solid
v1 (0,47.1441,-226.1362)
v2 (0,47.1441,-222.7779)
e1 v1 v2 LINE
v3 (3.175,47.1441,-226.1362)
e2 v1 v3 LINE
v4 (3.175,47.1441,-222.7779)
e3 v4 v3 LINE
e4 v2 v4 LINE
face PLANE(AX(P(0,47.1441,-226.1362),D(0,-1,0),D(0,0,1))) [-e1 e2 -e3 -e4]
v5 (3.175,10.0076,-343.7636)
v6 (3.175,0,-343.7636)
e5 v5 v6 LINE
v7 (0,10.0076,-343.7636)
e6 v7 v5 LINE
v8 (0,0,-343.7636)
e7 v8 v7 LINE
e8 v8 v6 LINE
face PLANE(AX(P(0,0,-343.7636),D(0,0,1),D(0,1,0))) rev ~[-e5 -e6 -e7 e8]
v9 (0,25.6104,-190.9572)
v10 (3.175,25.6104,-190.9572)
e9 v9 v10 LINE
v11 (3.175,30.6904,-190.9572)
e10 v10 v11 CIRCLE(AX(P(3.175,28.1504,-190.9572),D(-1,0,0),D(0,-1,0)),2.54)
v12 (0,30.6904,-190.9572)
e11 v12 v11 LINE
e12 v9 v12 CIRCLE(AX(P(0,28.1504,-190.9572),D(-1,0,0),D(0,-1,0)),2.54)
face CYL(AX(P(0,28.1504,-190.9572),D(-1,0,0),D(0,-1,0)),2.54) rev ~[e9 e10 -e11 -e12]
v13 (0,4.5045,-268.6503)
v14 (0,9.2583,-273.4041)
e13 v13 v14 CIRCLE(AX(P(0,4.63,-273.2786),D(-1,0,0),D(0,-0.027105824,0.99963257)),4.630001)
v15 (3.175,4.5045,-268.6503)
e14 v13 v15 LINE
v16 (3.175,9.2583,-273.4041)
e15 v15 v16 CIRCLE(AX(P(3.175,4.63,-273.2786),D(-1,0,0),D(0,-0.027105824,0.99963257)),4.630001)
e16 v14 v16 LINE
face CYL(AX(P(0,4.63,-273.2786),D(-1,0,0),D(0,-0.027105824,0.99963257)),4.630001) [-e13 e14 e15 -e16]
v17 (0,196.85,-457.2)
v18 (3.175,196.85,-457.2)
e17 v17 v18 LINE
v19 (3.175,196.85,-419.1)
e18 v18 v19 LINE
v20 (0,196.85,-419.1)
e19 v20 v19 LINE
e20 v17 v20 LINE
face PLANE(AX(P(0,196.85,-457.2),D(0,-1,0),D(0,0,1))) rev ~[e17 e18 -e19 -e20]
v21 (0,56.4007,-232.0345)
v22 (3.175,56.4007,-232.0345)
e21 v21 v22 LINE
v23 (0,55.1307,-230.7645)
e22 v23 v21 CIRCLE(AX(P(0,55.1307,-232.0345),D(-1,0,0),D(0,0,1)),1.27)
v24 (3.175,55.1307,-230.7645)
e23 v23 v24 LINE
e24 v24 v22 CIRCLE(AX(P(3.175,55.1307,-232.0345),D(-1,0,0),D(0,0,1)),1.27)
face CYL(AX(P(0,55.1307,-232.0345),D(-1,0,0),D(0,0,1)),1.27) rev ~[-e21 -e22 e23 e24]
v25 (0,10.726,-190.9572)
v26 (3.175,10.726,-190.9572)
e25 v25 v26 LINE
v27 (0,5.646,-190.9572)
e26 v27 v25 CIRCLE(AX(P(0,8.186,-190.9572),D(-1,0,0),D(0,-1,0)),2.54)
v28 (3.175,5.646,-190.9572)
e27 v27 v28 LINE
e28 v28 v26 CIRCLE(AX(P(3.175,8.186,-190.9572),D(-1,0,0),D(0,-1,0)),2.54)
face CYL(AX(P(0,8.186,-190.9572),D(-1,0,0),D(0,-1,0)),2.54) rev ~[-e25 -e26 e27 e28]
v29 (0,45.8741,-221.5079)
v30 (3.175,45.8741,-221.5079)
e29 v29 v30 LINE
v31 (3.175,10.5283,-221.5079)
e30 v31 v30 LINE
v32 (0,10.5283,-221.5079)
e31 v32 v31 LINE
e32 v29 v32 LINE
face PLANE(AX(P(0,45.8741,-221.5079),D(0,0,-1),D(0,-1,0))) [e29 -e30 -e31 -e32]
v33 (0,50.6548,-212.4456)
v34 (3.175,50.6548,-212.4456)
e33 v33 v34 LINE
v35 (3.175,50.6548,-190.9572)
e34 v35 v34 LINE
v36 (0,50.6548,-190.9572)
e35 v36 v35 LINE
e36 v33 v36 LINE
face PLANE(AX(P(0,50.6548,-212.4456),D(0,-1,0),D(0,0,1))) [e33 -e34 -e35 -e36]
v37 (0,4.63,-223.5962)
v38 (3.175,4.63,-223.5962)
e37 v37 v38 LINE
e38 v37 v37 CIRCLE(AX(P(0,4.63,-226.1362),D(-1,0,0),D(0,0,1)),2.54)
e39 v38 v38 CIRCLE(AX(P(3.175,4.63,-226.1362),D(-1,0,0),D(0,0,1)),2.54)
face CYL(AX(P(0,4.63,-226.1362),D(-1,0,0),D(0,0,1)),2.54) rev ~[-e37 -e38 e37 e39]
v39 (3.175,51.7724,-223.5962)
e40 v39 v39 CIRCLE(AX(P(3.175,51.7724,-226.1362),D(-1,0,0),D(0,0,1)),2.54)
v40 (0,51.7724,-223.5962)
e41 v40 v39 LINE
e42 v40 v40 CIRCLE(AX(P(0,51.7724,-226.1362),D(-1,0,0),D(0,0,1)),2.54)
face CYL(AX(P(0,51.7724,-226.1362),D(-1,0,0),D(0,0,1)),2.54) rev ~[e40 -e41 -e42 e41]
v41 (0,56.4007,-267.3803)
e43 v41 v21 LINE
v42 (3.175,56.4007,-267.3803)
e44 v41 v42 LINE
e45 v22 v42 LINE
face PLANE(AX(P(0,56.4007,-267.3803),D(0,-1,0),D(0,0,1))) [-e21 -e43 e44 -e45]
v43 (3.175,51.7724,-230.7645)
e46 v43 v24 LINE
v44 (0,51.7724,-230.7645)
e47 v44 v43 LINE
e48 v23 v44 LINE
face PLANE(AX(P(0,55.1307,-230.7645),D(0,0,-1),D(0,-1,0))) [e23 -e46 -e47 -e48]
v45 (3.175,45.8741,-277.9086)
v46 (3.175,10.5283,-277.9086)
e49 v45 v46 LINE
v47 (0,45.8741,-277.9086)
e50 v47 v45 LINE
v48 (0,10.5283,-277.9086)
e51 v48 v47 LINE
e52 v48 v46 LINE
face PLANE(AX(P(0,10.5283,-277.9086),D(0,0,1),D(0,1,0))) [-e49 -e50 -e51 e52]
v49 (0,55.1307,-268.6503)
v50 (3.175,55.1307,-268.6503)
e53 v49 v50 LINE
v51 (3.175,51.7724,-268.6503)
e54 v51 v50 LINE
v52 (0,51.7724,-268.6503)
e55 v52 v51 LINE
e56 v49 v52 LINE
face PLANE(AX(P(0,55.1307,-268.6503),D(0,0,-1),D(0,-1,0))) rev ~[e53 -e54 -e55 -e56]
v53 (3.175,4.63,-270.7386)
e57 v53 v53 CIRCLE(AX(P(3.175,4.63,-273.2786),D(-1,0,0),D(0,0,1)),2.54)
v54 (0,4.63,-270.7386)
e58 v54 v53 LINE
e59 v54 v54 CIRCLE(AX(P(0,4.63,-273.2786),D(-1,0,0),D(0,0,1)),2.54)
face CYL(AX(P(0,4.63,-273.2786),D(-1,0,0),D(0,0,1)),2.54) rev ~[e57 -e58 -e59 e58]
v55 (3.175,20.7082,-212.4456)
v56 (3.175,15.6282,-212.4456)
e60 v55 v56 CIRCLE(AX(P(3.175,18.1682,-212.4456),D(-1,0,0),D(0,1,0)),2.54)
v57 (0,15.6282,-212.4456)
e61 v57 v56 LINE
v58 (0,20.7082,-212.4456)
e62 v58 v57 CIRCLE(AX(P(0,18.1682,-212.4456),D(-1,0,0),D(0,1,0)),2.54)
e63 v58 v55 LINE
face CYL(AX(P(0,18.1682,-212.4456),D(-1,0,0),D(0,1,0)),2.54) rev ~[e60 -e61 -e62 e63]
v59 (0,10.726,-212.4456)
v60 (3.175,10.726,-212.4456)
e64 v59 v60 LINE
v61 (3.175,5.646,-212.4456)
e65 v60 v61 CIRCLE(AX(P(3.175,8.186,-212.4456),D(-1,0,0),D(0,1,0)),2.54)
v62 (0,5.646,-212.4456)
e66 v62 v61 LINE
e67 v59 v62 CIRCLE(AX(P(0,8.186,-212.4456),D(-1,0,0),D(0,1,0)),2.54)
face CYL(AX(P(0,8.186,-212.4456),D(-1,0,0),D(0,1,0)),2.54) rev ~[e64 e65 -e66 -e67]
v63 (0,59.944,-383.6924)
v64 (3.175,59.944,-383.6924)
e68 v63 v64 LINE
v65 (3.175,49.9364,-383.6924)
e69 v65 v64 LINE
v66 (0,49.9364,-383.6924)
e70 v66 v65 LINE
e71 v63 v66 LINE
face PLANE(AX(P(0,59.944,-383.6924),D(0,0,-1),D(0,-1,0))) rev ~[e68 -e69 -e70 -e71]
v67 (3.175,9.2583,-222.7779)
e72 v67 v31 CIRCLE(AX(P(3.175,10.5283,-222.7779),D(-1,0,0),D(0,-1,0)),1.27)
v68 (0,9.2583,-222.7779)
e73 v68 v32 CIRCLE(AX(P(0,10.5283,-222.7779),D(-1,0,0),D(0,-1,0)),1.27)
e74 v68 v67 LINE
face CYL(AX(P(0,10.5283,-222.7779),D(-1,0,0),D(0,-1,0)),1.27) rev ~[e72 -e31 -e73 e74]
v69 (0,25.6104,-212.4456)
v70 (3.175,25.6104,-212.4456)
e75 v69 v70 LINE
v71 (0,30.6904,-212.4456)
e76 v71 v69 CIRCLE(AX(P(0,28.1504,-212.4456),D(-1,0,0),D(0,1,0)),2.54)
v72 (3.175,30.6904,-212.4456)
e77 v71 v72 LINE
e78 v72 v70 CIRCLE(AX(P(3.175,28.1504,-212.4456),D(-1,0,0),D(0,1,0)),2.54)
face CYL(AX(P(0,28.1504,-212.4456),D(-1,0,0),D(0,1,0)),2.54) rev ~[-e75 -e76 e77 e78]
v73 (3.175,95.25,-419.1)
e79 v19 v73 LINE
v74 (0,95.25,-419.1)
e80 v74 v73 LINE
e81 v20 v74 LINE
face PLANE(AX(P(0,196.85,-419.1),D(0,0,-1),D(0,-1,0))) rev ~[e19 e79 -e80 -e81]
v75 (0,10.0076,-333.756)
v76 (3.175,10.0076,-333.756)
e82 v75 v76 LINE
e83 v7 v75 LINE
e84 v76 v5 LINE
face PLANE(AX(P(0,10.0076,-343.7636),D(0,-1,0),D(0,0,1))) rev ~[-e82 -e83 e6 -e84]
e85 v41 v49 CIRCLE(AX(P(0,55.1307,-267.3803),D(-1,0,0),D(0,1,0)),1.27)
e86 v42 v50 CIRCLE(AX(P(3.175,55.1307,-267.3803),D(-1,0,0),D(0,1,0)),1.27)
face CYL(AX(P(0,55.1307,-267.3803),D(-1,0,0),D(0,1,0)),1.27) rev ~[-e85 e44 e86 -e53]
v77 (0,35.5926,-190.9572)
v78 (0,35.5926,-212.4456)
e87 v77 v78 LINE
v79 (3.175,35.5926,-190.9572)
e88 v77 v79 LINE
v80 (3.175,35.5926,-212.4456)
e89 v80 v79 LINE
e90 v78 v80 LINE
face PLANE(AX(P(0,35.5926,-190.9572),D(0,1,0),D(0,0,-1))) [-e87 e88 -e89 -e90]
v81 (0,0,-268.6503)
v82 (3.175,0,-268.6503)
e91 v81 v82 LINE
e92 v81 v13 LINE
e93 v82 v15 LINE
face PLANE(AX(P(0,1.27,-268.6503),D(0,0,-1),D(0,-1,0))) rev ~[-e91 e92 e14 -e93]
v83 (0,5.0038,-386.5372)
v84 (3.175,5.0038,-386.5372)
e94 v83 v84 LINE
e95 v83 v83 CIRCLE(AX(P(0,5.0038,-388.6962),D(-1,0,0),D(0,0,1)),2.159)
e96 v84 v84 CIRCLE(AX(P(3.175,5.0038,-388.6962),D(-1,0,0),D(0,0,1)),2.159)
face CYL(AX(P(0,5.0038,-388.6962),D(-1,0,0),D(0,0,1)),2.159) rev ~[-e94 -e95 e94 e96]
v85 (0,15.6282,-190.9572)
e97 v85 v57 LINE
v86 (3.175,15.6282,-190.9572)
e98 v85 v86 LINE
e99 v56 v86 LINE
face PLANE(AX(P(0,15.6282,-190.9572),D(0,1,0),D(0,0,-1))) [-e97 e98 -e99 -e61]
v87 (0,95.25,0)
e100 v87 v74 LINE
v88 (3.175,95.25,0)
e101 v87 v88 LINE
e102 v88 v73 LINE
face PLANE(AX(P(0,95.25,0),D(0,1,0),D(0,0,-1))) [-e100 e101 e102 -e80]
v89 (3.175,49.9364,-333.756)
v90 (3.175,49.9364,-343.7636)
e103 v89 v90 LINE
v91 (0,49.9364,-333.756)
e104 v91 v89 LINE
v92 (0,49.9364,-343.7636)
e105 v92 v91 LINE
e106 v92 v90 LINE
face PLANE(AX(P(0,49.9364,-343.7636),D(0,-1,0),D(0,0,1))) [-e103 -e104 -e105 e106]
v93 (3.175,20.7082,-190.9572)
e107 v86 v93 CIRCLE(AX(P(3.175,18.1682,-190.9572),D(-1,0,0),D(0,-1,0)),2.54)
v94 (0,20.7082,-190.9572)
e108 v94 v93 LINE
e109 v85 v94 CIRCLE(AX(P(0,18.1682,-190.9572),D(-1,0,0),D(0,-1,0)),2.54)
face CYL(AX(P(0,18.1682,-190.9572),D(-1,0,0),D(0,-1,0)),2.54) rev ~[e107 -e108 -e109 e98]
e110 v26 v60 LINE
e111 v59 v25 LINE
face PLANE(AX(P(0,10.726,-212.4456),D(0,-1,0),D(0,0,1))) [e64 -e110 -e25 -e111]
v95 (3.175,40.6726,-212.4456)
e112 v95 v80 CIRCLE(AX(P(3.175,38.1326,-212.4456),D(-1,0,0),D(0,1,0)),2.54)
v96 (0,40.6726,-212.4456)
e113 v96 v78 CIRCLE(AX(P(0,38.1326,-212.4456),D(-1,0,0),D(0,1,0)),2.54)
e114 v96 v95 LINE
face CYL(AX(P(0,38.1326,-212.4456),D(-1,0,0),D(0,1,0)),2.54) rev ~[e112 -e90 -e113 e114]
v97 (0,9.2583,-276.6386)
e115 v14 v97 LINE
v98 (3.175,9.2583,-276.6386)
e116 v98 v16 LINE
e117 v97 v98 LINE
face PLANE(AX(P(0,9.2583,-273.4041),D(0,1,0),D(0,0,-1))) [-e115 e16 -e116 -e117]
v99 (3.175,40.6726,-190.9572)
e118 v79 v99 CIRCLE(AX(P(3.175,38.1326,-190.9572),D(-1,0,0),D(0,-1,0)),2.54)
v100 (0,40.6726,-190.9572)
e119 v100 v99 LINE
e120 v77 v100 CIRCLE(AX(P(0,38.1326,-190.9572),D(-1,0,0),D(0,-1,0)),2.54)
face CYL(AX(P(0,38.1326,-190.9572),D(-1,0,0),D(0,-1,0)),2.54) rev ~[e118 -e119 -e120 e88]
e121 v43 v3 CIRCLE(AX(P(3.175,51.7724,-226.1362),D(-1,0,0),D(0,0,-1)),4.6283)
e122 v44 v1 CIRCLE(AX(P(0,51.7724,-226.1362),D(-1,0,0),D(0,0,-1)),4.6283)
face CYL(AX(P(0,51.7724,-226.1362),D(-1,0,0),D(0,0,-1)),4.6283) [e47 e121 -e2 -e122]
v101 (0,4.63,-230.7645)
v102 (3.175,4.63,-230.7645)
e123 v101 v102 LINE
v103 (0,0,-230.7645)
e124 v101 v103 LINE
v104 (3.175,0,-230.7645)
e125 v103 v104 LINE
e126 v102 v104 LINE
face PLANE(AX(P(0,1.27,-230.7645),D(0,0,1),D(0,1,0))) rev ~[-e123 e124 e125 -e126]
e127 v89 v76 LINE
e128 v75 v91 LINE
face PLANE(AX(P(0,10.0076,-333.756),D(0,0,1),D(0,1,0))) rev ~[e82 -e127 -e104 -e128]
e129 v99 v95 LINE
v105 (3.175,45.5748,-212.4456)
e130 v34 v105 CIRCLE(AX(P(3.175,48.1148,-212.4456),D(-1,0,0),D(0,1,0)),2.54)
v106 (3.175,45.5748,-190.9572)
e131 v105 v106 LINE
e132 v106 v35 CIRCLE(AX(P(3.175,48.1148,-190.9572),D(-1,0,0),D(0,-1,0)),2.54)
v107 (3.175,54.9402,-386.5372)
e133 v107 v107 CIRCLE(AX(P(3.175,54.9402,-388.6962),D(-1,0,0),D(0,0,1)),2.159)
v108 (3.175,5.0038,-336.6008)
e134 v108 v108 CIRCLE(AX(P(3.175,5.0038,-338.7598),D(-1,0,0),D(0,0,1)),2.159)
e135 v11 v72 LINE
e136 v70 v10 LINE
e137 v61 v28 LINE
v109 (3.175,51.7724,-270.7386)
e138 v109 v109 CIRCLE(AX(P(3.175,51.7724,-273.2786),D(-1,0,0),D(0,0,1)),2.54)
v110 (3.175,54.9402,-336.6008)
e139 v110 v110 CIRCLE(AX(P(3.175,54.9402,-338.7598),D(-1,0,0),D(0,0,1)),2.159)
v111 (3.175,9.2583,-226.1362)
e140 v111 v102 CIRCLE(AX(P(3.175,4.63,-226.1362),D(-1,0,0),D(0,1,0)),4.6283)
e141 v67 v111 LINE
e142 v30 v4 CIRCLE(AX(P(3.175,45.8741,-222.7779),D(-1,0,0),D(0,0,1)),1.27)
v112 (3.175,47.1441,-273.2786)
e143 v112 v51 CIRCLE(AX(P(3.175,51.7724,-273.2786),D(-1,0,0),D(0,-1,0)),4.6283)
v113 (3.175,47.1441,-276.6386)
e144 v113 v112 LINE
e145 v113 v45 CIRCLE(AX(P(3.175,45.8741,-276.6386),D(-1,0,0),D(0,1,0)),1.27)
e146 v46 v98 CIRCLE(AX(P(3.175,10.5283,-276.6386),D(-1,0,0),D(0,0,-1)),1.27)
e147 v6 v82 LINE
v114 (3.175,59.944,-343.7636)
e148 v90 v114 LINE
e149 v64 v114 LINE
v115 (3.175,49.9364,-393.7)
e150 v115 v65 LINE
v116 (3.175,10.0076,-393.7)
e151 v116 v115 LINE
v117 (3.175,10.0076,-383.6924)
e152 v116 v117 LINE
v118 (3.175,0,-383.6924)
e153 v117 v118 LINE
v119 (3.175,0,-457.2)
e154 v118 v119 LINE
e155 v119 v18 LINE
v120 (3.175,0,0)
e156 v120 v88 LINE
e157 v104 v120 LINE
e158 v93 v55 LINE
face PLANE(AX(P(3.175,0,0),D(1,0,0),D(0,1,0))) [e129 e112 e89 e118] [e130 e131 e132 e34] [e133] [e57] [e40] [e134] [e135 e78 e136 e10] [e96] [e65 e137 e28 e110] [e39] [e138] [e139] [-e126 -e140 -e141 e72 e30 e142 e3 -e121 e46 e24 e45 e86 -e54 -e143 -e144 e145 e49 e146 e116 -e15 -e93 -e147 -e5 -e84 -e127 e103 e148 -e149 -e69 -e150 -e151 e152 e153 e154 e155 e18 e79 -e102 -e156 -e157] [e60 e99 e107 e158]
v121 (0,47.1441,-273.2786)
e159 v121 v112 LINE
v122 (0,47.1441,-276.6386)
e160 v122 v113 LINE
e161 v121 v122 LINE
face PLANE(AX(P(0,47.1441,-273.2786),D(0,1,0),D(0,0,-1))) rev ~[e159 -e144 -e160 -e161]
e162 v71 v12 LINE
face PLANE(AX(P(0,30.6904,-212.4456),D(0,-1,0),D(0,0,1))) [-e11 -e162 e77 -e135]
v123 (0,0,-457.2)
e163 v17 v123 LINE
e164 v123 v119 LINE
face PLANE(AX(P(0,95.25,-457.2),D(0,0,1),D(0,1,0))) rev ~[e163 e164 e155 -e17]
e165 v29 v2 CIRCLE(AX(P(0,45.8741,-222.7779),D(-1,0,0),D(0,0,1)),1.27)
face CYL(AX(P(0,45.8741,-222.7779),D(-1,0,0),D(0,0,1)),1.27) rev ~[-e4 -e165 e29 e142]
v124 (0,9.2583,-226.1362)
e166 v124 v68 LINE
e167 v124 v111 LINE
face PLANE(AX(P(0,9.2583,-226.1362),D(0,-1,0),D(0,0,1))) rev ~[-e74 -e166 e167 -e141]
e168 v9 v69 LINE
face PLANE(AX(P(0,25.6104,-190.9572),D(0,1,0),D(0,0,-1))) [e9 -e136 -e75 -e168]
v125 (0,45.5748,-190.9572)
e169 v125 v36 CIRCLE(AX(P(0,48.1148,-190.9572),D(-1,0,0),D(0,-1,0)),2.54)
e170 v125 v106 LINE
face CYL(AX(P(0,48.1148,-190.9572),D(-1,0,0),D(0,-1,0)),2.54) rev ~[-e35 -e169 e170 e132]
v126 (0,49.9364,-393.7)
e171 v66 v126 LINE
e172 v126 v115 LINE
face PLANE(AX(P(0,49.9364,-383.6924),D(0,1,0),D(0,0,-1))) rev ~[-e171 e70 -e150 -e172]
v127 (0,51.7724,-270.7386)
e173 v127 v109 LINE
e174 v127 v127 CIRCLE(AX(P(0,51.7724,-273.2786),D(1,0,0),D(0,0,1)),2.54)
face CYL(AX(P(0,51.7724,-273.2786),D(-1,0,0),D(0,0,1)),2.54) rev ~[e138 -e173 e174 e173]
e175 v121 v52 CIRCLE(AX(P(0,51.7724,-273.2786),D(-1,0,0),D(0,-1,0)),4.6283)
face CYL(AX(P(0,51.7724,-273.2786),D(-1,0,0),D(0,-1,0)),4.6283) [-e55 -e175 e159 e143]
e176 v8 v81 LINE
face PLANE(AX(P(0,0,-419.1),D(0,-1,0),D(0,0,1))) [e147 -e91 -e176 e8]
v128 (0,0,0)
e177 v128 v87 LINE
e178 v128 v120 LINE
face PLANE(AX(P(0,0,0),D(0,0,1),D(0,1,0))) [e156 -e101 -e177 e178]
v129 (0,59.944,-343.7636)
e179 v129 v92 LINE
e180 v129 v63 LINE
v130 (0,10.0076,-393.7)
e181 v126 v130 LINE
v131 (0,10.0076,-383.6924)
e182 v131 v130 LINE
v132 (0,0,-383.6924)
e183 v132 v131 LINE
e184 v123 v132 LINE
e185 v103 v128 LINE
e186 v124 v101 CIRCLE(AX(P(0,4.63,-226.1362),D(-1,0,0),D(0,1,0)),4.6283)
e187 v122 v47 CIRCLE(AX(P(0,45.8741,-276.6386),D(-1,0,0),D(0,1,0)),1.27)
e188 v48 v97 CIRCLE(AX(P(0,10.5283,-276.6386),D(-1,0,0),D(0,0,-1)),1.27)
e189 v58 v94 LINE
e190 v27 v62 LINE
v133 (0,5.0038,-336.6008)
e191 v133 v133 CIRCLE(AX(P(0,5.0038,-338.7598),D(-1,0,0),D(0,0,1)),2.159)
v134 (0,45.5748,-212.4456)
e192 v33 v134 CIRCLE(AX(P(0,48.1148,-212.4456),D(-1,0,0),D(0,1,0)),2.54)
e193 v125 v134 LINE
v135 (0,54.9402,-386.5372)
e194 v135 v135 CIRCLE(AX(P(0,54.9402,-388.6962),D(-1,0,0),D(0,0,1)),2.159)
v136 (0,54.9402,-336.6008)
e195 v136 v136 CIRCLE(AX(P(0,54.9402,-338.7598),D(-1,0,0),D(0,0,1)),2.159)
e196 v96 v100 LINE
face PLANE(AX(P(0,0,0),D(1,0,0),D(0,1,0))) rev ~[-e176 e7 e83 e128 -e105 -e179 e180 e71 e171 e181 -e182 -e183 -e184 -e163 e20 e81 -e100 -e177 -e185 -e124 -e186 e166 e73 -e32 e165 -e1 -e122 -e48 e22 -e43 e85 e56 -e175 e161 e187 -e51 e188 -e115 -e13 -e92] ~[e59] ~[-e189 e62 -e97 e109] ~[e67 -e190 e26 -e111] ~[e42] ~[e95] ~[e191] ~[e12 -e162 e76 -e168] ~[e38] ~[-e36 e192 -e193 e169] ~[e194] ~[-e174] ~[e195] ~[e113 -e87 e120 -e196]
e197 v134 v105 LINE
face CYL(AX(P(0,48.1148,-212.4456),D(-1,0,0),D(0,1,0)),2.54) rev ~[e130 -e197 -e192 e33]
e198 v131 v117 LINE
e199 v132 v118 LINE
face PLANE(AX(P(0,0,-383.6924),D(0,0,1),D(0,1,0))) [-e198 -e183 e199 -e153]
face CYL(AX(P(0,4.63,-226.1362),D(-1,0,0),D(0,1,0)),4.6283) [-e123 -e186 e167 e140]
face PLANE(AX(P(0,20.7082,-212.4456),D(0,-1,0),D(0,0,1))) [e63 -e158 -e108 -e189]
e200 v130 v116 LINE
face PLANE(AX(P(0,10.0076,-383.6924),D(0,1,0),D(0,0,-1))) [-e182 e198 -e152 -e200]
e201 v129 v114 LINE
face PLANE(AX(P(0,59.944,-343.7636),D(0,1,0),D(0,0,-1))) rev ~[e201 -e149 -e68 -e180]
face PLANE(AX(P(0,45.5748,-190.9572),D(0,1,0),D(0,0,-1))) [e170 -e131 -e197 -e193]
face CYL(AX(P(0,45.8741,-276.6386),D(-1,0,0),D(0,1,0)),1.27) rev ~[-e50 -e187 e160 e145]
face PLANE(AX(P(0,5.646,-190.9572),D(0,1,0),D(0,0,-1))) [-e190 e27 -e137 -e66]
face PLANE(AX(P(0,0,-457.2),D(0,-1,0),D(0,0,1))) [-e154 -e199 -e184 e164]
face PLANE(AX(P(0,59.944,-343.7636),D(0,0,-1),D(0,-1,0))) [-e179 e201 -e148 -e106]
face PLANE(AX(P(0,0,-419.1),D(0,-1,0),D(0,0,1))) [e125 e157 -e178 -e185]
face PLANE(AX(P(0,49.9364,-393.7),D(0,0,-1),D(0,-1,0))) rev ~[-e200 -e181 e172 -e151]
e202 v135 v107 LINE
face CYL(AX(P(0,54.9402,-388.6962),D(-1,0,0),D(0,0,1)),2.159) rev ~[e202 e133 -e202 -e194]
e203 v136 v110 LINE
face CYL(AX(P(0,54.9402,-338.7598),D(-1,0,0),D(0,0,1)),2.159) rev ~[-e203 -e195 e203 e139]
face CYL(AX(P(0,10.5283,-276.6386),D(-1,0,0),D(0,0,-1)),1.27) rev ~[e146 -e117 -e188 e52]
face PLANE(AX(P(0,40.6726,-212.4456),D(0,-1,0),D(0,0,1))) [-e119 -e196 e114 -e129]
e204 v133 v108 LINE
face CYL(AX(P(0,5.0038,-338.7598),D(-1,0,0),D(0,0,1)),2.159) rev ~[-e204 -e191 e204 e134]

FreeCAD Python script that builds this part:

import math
import FreeCAD as App
import Part
import Sketcher
Q = App.Units.Quantity

doc = App.newDocument("Part")
params = doc.addObject("Spreadsheet::Sheet", "Params")
for row, (alias, value) in enumerate([
    ("sketch1_width", "4 in"),
    ("sketch1_height", "18 in"),
    ("sketch1_height2", "1.5 in"),
    ("sketch1_width2", "3.75 in"),
    ("pad1_length", "0.125 in"),
    ("sketch2_radius", "0.05 in"),
    ("sketch2_diameter", "0.2 in"),
    ("sketch2_diameter2", "0.17 in"),
    ("sketch2_width", "1.572 in"),
    ("sketch2_width2", "0.394 in"),
    ("pocket1_length", "1 in"),
], start=1):
    params.set(f"A{row}", alias)
    params.set(f"B{row}", "=" + value)
    params.setAlias(f"B{row}", alias)

body = doc.addObject("PartDesign::Body", "Body")

# Sketch on YZ plane
sketch1 = doc.addObject("Sketcher::SketchObject", "Sketch")
body.addObject(sketch1)
sketch1.AttachmentSupport = (doc.YZ_Plane, [""])
sketch1.MapMode = "FlatFace"
sketch1.addGeometry(Part.LineSegment(App.Vector(95, 0, 0), App.Vector(0, 0, 0)), False)
sketch1.addGeometry(Part.LineSegment(App.Vector(0, 0, 0), App.Vector(0, -457, 0)), False)
sketch1.addGeometry(Part.LineSegment(App.Vector(0, -457, 0), App.Vector(197, -457, 0)), False)
sketch1.addGeometry(Part.LineSegment(App.Vector(197, -457, 0), App.Vector(197, -419, 0)), False)
sketch1.addGeometry(Part.LineSegment(App.Vector(197, -419, 0), App.Vector(95, -419, 0)), False)
sketch1.addGeometry(Part.LineSegment(App.Vector(95, -419, 0), App.Vector(95, 0, 0)), False)
sketch1.addConstraint(Sketcher.Constraint("Coincident", 0, 2, 1, 1))
sketch1.addConstraint(Sketcher.Constraint("Coincident", 1, 2, 2, 1))
sketch1.addConstraint(Sketcher.Constraint("Coincident", 2, 2, 3, 1))
sketch1.addConstraint(Sketcher.Constraint("Coincident", 3, 2, 4, 1))
sketch1.addConstraint(Sketcher.Constraint("Coincident", 4, 2, 5, 1))
sketch1.addConstraint(Sketcher.Constraint("Coincident", 5, 2, 0, 1))
sketch1.addConstraint(Sketcher.Constraint("Horizontal", 0))
sketch1.addConstraint(Sketcher.Constraint("Vertical", 1))
sketch1.addConstraint(Sketcher.Constraint("Horizontal", 2))
sketch1.addConstraint(Sketcher.Constraint("Vertical", 3))
sketch1.addConstraint(Sketcher.Constraint("Horizontal", 4))
sketch1.addConstraint(Sketcher.Constraint("Vertical", 5))
sketch1.addConstraint(Sketcher.Constraint("Coincident", 0, 2, -1, 1))
sketch1.addConstraint(Sketcher.Constraint("DistanceX", 4, 2, 4, 1, Q("4 in")))
sketch1.addConstraint(Sketcher.Constraint("DistanceY", 1, 2, 1, 1, Q("18 in")))
sketch1.addConstraint(Sketcher.Constraint("DistanceY", 3, 1, 3, 2, Q("1.5 in")))
sketch1.addConstraint(Sketcher.Constraint("DistanceX", 0, 2, 0, 1, Q("3.75 in")))
sketch1.setExpression("Constraints[13]", "Params.sketch1_width")
sketch1.setExpression("Constraints[14]", "Params.sketch1_height")
sketch1.setExpression("Constraints[15]", "Params.sketch1_height2")
sketch1.setExpression("Constraints[16]", "Params.sketch1_width2")
pad1 = doc.addObject("PartDesign::Pad", "Pad")
body.addObject(pad1)
pad1.Profile = sketch1
pad1.setExpression("Length", "Params.pad1_length")

# Sketch on YZ plane
sketch2 = doc.addObject("Sketcher::SketchObject", "Sketch001")
body.addObject(sketch2)
sketch2.AttachmentSupport = (doc.YZ_Plane, [""])
sketch2.MapMode = "FlatFace"
sketch2.addGeometry(Part.LineSegment(App.Vector(49.9, -383.7, 0), App.Vector(49.9, -393.7, 0)), False)
sketch2.addGeometry(Part.LineSegment(App.Vector(49.9, -393.7, 0), App.Vector(10, -393.7, 0)), False)
sketch2.addGeometry(Part.LineSegment(App.Vector(10, -393.7, 0), App.Vector(10, -383.7, 0)), False)
sketch2.addGeometry(Part.LineSegment(App.Vector(10, -383.7, 0), App.Vector(0, -383.7, 0)), False)
sketch2.addGeometry(Part.LineSegment(App.Vector(0, -383.7, 0), App.Vector(0, -343.8, 0)), False)
sketch2.addGeometry(Part.LineSegment(App.Vector(0, -343.8, 0), App.Vector(10, -343.8, 0)), False)
sketch2.addGeometry(Part.LineSegment(App.Vector(10, -343.8, 0), App.Vector(10, -333.8, 0)), False)
sketch2.addGeometry(Part.LineSegment(App.Vector(10, -333.8, 0), App.Vector(49.9, -333.8, 0)), False)
sketch2.addGeometry(Part.LineSegment(App.Vector(49.9, -333.8, 0), App.Vector(49.9, -343.8, 0)), False)
sketch2.addGeometry(Part.LineSegment(App.Vector(49.9, -343.8, 0), App.Vector(59.9, -343.8, 0)), False)
sketch2.addGeometry(Part.LineSegment(App.Vector(59.9, -343.8, 0), App.Vector(59.9, -383.7, 0)), False)
sketch2.addGeometry(Part.LineSegment(App.Vector(59.9, -383.7, 0), App.Vector(49.9, -383.7, 0)), False)
sketch2.addGeometry(Part.LineSegment(App.Vector(4.5, -268.7, 0), App.Vector(0, -268.7, 0)), False)
sketch2.addGeometry(Part.LineSegment(App.Vector(0, -268.7, 0), App.Vector(0, -230.8, 0)), False)
sketch2.addGeometry(Part.LineSegment(App.Vector(0, -230.8, 0), App.Vector(4.6, -230.8, 0)), False)
sketch2.addGeometry(Part.ArcOfCircle(Part.Circle(App.Vector(4.6, -226.1, 0), App.Vector(0, 0, 1), 4.6), math.radians(-90), math.radians(0)), False)
sketch2.addGeometry(Part.LineSegment(App.Vector(9.3, -226.1, 0), App.Vector(9.3, -222.8, 0)), False)
sketch2.addGeometry(Part.ArcOfCircle(Part.Circle(App.Vector(10.5, -222.8, 0), App.Vector(0, 0, 1), 1.3), math.radians(90), math.radians(180)), False)
sketch2.addGeometry(Part.LineSegment(App.Vector(10.5, -221.5, 0), App.Vector(45.9, -221.5, 0)), False)
sketch2.addGeometry(Part.ArcOfCircle(Part.Circle(App.Vector(45.9, -222.8, 0), App.Vector(0, 0, 1), 1.3), math.radians(0), math.radians(90)), False)
sketch2.addGeometry(Part.LineSegment(App.Vector(47.1, -222.8, 0), App.Vector(47.1, -226.1, 0)), False)
sketch2.addGeometry(Part.ArcOfCircle(Part.Circle(App.Vector(51.8, -226.1, 0), App.Vector(0, 0, 1), 4.6), math.radians(180), math.radians(270)), False)
sketch2.addGeometry(Part.LineSegment(App.Vector(51.8, -230.8, 0), App.Vector(55.1, -230.8, 0)), False)
sketch2.addGeometry(Part.ArcOfCircle(Part.Circle(App.Vector(55.1, -232, 0), App.Vector(0, 0, 1), 1.3), math.radians(0), math.radians(90)), False)
sketch2.addGeometry(Part.LineSegment(App.Vector(56.4, -232, 0), App.Vector(56.4, -267.4, 0)), False)
sketch2.addGeometry(Part.ArcOfCircle(Part.Circle(App.Vector(55.1, -267.4, 0), App.Vector(0, 0, 1), 1.3), math.radians(-90), math.radians(0)), False)
sketch2.addGeometry(Part.LineSegment(App.Vector(55.1, -268.7, 0), App.Vector(51.8, -268.7, 0)), False)
sketch2.addGeometry(Part.ArcOfCircle(Part.Circle(App.Vector(51.8, -273.3, 0), App.Vector(0, 0, 1), 4.6), math.radians(90), math.radians(180)), False)
sketch2.addGeometry(Part.LineSegment(App.Vector(47.1, -273.3, 0), App.Vector(47.1, -276.6, 0)), False)
sketch2.addGeometry(Part.ArcOfCircle(Part.Circle(App.Vector(45.9, -276.6, 0), App.Vector(0, 0, 1), 1.3), math.radians(-90), math.radians(0)), False)
sketch2.addGeometry(Part.LineSegment(App.Vector(45.9, -277.9, 0), App.Vector(10.5, -277.9, 0)), False)
sketch2.addGeometry(Part.ArcOfCircle(Part.Circle(App.Vector(10.5, -276.6, 0), App.Vector(0, 0, 1), 1.3), math.radians(180), math.radians(270)), False)
sketch2.addGeometry(Part.LineSegment(App.Vector(9.3, -276.6, 0), App.Vector(9.3, -273.4, 0)), False)
sketch2.addGeometry(Part.ArcOfCircle(Part.Circle(App.Vector(4.6, -273.3, 0), App.Vector(0, 0, 1), 4.6), math.radians(-2), math.radians(92)), False)
sketch2.addGeometry(Part.Circle(App.Vector(54.9, -388.7, 0), App.Vector(0, 0, 1), 2.2), False)
sketch2.addGeometry(Part.Circle(App.Vector(54.9, -338.8, 0), App.Vector(0, 0, 1), 2.2), False)
sketch2.addGeometry(Part.Circle(App.Vector(5, -388.7, 0), App.Vector(0, 0, 1), 2.2), False)
sketch2.addGeometry(Part.Circle(App.Vector(5, -338.8, 0), App.Vector(0, 0, 1), 2.2), False)
sketch2.addGeometry(Part.Circle(App.Vector(51.8, -273.3, 0), App.Vector(0, 0, 1), 2.5), False)
sketch2.addGeometry(Part.Circle(App.Vector(4.6, -273.3, 0), App.Vector(0, 0, 1), 2.5), False)
sketch2.addGeometry(Part.Circle(App.Vector(51.8, -226.1, 0), App.Vector(0, 0, 1), 2.5), False)
sketch2.addGeometry(Part.Circle(App.Vector(4.6, -226.1, 0), App.Vector(0, 0, 1), 2.5), False)
sketch2.addGeometry(Part.LineSegment(App.Vector(5.6, -212.4, 0), App.Vector(5.6, -191, 0)), False)
sketch2.addGeometry(Part.ArcOfCircle(Part.Circle(App.Vector(8.2, -191, 0), App.Vector(0, 0, 1), 2.5), math.radians(0), math.radians(180)), False)
sketch2.addGeometry(Part.LineSegment(App.Vector(10.7, -191, 0), App.Vector(10.7, -212.4, 0)), False)
sketch2.addGeometry(Part.ArcOfCircle(Part.Circle(App.Vector(8.2, -212.4, 0), App.Vector(0, 0, 1), 2.5), math.radians(180), math.radians(360)), False)
sketch2.addGeometry(Part.LineSegment(App.Vector(15.6, -212.4, 0), App.Vector(15.6, -191, 0)), False)
sketch2.addGeometry(Part.ArcOfCircle(Part.Circle(App.Vector(18.2, -191, 0), App.Vector(0, 0, 1), 2.5), math.radians(0), math.radians(180)), False)
sketch2.addGeometry(Part.LineSegment(App.Vector(20.7, -191, 0), App.Vector(20.7, -212.4, 0)), False)
sketch2.addGeometry(Part.ArcOfCircle(Part.Circle(App.Vector(18.2, -212.4, 0), App.Vector(0, 0, 1), 2.5), math.radians(180), math.radians(360)), False)
sketch2.addGeometry(Part.LineSegment(App.Vector(25.6, -212.4, 0), App.Vector(25.6, -191, 0)), False)
sketch2.addGeometry(Part.ArcOfCircle(Part.Circle(App.Vector(28.2, -191, 0), App.Vector(0, 0, 1), 2.5), math.radians(0), math.radians(180)), False)
sketch2.addGeometry(Part.LineSegment(App.Vector(30.7, -191, 0), App.Vector(30.7, -212.4, 0)), False)
sketch2.addGeometry(Part.ArcOfCircle(Part.Circle(App.Vector(28.2, -212.4, 0), App.Vector(0, 0, 1), 2.5), math.radians(180), math.radians(360)), False)
sketch2.addGeometry(Part.LineSegment(App.Vector(35.6, -212.4, 0), App.Vector(35.6, -191, 0)), False)
sketch2.addGeometry(Part.ArcOfCircle(Part.Circle(App.Vector(38.1, -191, 0), App.Vector(0, 0, 1), 2.5), math.radians(0), math.radians(180)), False)
sketch2.addGeometry(Part.LineSegment(App.Vector(40.7, -191, 0), App.Vector(40.7, -212.4, 0)), False)
sketch2.addGeometry(Part.ArcOfCircle(Part.Circle(App.Vector(38.1, -212.4, 0), App.Vector(0, 0, 1), 2.5), math.radians(180), math.radians(360)), False)
sketch2.addGeometry(Part.LineSegment(App.Vector(45.6, -212.4, 0), App.Vector(45.6, -191, 0)), False)
sketch2.addGeometry(Part.ArcOfCircle(Part.Circle(App.Vector(48.1, -191, 0), App.Vector(0, 0, 1), 2.5), math.radians(0), math.radians(180)), False)
sketch2.addGeometry(Part.LineSegment(App.Vector(50.7, -191, 0), App.Vector(50.7, -212.4, 0)), False)
sketch2.addGeometry(Part.ArcOfCircle(Part.Circle(App.Vector(48.1, -212.4, 0), App.Vector(0, 0, 1), 2.5), math.radians(180), math.radians(360)), False)
sketch2.addConstraint(Sketcher.Constraint("Coincident", 0, 2, 1, 1))
sketch2.addConstraint(Sketcher.Constraint("Coincident", 1, 2, 2, 1))
sketch2.addConstraint(Sketcher.Constraint("Coincident", 2, 2, 3, 1))
sketch2.addConstraint(Sketcher.Constraint("Coincident", 3, 2, 4, 1))
sketch2.addConstraint(Sketcher.Constraint("Coincident", 4, 2, 5, 1))
sketch2.addConstraint(Sketcher.Constraint("Coincident", 5, 2, 6, 1))
sketch2.addConstraint(Sketcher.Constraint("Coincident", 6, 2, 7, 1))
sketch2.addConstraint(Sketcher.Constraint("Coincident", 7, 2, 8, 1))
sketch2.addConstraint(Sketcher.Constraint("Coincident", 8, 2, 9, 1))
sketch2.addConstraint(Sketcher.Constraint("Coincident", 9, 2, 10, 1))
sketch2.addConstraint(Sketcher.Constraint("Coincident", 10, 2, 11, 1))
sketch2.addConstraint(Sketcher.Constraint("Coincident", 11, 2, 0, 1))
sketch2.addConstraint(Sketcher.Constraint("Coincident", 12, 2, 13, 1))
sketch2.addConstraint(Sketcher.Constraint("Coincident", 13, 2, 14, 1))
sketch2.addConstraint(Sketcher.Constraint("Tangent", 14, 2, 15, 1))
sketch2.addConstraint(Sketcher.Constraint("Tangent", 15, 2, 16, 1))
sketch2.addConstraint(Sketcher.Constraint("Tangent", 16, 2, 17, 2))
sketch2.addConstraint(Sketcher.Constraint("Tangent", 17, 1, 18, 1))
sketch2.addConstraint(Sketcher.Constraint("Tangent", 18, 2, 19, 2))
sketch2.addConstraint(Sketcher.Constraint("Tangent", 19, 1, 20, 1))
sketch2.addConstraint(Sketcher.Constraint("Tangent", 20, 2, 21, 1))
sketch2.addConstraint(Sketcher.Constraint("Tangent", 21, 2, 22, 1))
sketch2.addConstraint(Sketcher.Constraint("Tangent", 22, 2, 23, 2))
sketch2.addConstraint(Sketcher.Constraint("Tangent", 23, 1, 24, 1))
sketch2.addConstraint(Sketcher.Constraint("Tangent", 24, 2, 25, 2))
sketch2.addConstraint(Sketcher.Constraint("Tangent", 25, 1, 26, 1))
sketch2.addConstraint(Sketcher.Constraint("Tangent", 26, 2, 27, 1))
sketch2.addConstraint(Sketcher.Constraint("Tangent", 27, 2, 28, 1))
sketch2.addConstraint(Sketcher.Constraint("Tangent", 28, 2, 29, 2))
sketch2.addConstraint(Sketcher.Constraint("Tangent", 29, 1, 30, 1))
sketch2.addConstraint(Sketcher.Constraint("Tangent", 30, 2, 31, 2))
sketch2.addConstraint(Sketcher.Constraint("Tangent", 31, 1, 32, 1))
sketch2.addConstraint(Sketcher.Constraint("Coincident", 32, 2, 33, 1))
sketch2.addConstraint(Sketcher.Constraint("Coincident", 33, 2, 12, 1))
sketch2.addConstraint(Sketcher.Constraint("Tangent", 42, 2, 43, 2))
sketch2.addConstraint(Sketcher.Constraint("Tangent", 43, 1, 44, 1))
sketch2.addConstraint(Sketcher.Constraint("Tangent", 44, 2, 45, 2))
sketch2.addConstraint(Sketcher.Constraint("Tangent", 45, 1, 42, 1))
sketch2.addConstraint(Sketcher.Constraint("Tangent", 46, 2, 47, 2))
sketch2.addConstraint(Sketcher.Constraint("Tangent", 47, 1, 48, 1))
sketch2.addConstraint(Sketcher.Constraint("Tangent", 48, 2, 49, 2))
sketch2.addConstraint(Sketcher.Constraint("Tangent", 49, 1, 46, 1))
sketch2.addConstraint(Sketcher.Constraint("Tangent", 50, 2, 51, 2))
sketch2.addConstraint(Sketcher.Constraint("Tangent", 51, 1, 52, 1))
sketch2.addConstraint(Sketcher.Constraint("Tangent", 52, 2, 53, 2))
sketch2.addConstraint(Sketcher.Constraint("Tangent", 53, 1, 50, 1))
sketch2.addConstraint(Sketcher.Constraint("Tangent", 54, 2, 55, 2))
sketch2.addConstraint(Sketcher.Constraint("Tangent", 55, 1, 56, 1))
sketch2.addConstraint(Sketcher.Constraint("Tangent", 56, 2, 57, 2))
sketch2.addConstraint(Sketcher.Constraint("Tangent", 57, 1, 54, 1))
sketch2.addConstraint(Sketcher.Constraint("Tangent", 58, 2, 59, 2))
sketch2.addConstraint(Sketcher.Constraint("Tangent", 59, 1, 60, 1))
sketch2.addConstraint(Sketcher.Constraint("Tangent", 60, 2, 61, 2))
sketch2.addConstraint(Sketcher.Constraint("Tangent", 61, 1, 58, 1))
sketch2.addConstraint(Sketcher.Constraint("Vertical", 0))
sketch2.addConstraint(Sketcher.Constraint("Horizontal", 1))
sketch2.addConstraint(Sketcher.Constraint("Vertical", 2))
sketch2.addConstraint(Sketcher.Constraint("Horizontal", 3))
sketch2.addConstraint(Sketcher.Constraint("Vertical", 4))
sketch2.addConstraint(Sketcher.Constraint("Horizontal", 5))
sketch2.addConstraint(Sketcher.Constraint("Vertical", 6))
sketch2.addConstraint(Sketcher.Constraint("Horizontal", 7))
sketch2.addConstraint(Sketcher.Constraint("Vertical", 8))
sketch2.addConstraint(Sketcher.Constraint("Horizontal", 9))
sketch2.addConstraint(Sketcher.Constraint("Vertical", 10))
sketch2.addConstraint(Sketcher.Constraint("Horizontal", 11))
sketch2.addConstraint(Sketcher.Constraint("Horizontal", 12))
sketch2.addConstraint(Sketcher.Constraint("Vertical", 13))
sketch2.addConstraint(Sketcher.Constraint("Horizontal", 14))
sketch2.addConstraint(Sketcher.Constraint("Vertical", 16))
sketch2.addConstraint(Sketcher.Constraint("Horizontal", 18))
sketch2.addConstraint(Sketcher.Constraint("Vertical", 20))
sketch2.addConstraint(Sketcher.Constraint("Horizontal", 22))
sketch2.addConstraint(Sketcher.Constraint("Vertical", 24))
sketch2.addConstraint(Sketcher.Constraint("Horizontal", 26))
sketch2.addConstraint(Sketcher.Constraint("Vertical", 28))
sketch2.addConstraint(Sketcher.Constraint("Horizontal", 30))
sketch2.addConstraint(Sketcher.Constraint("Vertical", 32))
sketch2.addConstraint(Sketcher.Constraint("Vertical", 42))
sketch2.addConstraint(Sketcher.Constraint("Vertical", 44))
sketch2.addConstraint(Sketcher.Constraint("Vertical", 46))
sketch2.addConstraint(Sketcher.Constraint("Vertical", 48))
sketch2.addConstraint(Sketcher.Constraint("Vertical", 50))
sketch2.addConstraint(Sketcher.Constraint("Vertical", 52))
sketch2.addConstraint(Sketcher.Constraint("Vertical", 54))
sketch2.addConstraint(Sketcher.Constraint("Vertical", 56))
sketch2.addConstraint(Sketcher.Constraint("Vertical", 58))
sketch2.addConstraint(Sketcher.Constraint("Vertical", 60))
sketch2.addConstraint(Sketcher.Constraint("Coincident", 38, 3, 27, 3))
sketch2.addConstraint(Sketcher.Constraint("Coincident", 39, 3, 33, 3))
sketch2.addConstraint(Sketcher.Constraint("Coincident", 40, 3, 21, 3))
sketch2.addConstraint(Sketcher.Constraint("Coincident", 41, 3, 15, 3))
sketch2.addConstraint(Sketcher.Constraint("Equal", 17, 19))
sketch2.addConstraint(Sketcher.Constraint("Equal", 15, 21))
sketch2.addConstraint(Sketcher.Constraint("Equal", 19, 23))
sketch2.addConstraint(Sketcher.Constraint("Equal", 23, 25))
sketch2.addConstraint(Sketcher.Constraint("Equal", 21, 27))
sketch2.addConstraint(Sketcher.Constraint("Equal", 25, 29))
sketch2.addConstraint(Sketcher.Constraint("Equal", 29, 31))
sketch2.addConstraint(Sketcher.Constraint("Equal", 34, 35))
sketch2.addConstraint(Sketcher.Constraint("Equal", 35, 36))
sketch2.addConstraint(Sketcher.Constraint("Equal", 36, 37))
sketch2.addConstraint(Sketcher.Constraint("Equal", 38, 39))
sketch2.addConstraint(Sketcher.Constraint("Equal", 39, 40))
sketch2.addConstraint(Sketcher.Constraint("Equal", 40, 41))
sketch2.addConstraint(Sketcher.Constraint("Equal", 41, 43))
sketch2.addConstraint(Sketcher.Constraint("Equal", 45, 47))
sketch2.addConstraint(Sketcher.Constraint("Equal", 49, 51))
sketch2.addConstraint(Sketcher.Constraint("Equal", 53, 55))
sketch2.addConstraint(Sketcher.Constraint("Equal", 57, 59))
sketch2.addConstraint(Sketcher.Constraint("PointOnObject", 3, 2, -2))
sketch2.addConstraint(Sketcher.Constraint("PointOnObject", 12, 2, -2))
sketch2.addConstraint(Sketcher.Constraint("Horizontal", 15, 3, 21, 3))
sketch2.addConstraint(Sketcher.Constraint("Horizontal", 27, 3, 33, 3))
sketch2.addConstraint(Sketcher.Constraint("Horizontal", 34, 3, 36, 3))
sketch2.addConstraint(Sketcher.Constraint("Horizontal", 35, 3, 37, 3))
sketch2.addConstraint(Sketcher.Constraint("Horizontal", 43, 3, 47, 3))
sketch2.addConstraint(Sketcher.Constraint("Horizontal", 45, 3, 49, 3))
sketch2.addConstraint(Sketcher.Constraint("Horizontal", 47, 3, 51, 3))
sketch2.addConstraint(Sketcher.Constraint("Horizontal", 49, 3, 53, 3))
sketch2.addConstraint(Sketcher.Constraint("Horizontal", 51, 3, 55, 3))
sketch2.addConstraint(Sketcher.Constraint("Horizontal", 53, 3, 57, 3))
sketch2.addConstraint(Sketcher.Constraint("Horizontal", 55, 3, 59, 3))
sketch2.addConstraint(Sketcher.Constraint("Horizontal", 57, 3, 61, 3))
sketch2.addConstraint(Sketcher.Constraint("Horizontal", 5, 2, 8, 2))
sketch2.addConstraint(Sketcher.Constraint("Horizontal", 3, 2, 10, 2))
sketch2.addConstraint(Sketcher.Constraint("Horizontal", 12, 2, 25, 1))
sketch2.addConstraint(Sketcher.Constraint("Vertical", 21, 3, 27, 3))
sketch2.addConstraint(Sketcher.Constraint("Vertical", 17, 3, 31, 3))
sketch2.addConstraint(Sketcher.Constraint("Vertical", 15, 3, 33, 3))
sketch2.addConstraint(Sketcher.Constraint("Vertical", 34, 3, 35, 3))
sketch2.addConstraint(Sketcher.Constraint("Vertical", 36, 3, 37, 3))
sketch2.addConstraint(Sketcher.Constraint("Vertical", 2, 2, 5, 2))
sketch2.addConstraint(Sketcher.Constraint("Vertical", 0, 2, 7, 2))
sketch2.addConstraint(Sketcher.Constraint("Equal", 5, 9))
sketch2.addConstraint(Sketcher.Constraint("Equal", 11, 0))
sketch2.addConstraint(Sketcher.Constraint("Equal", 7, 4))
sketch2.addConstraint(Sketcher.Constraint("Equal", 2, 6))
sketch2.addConstraint(Sketcher.Constraint("Equal", 26, 16))
sketch2.addConstraint(Sketcher.Constraint("Equal", 30, 24))
sketch2.addConstraint(Sketcher.Constraint("Radius", 17, Q("0.05 in")))
sketch2.addConstraint(Sketcher.Constraint("Diameter", 38, Q("0.2 in")))
sketch2.addConstraint(Sketcher.Constraint("Diameter", 34, Q("0.17 in")))
sketch2.addConstraint(Sketcher.Constraint("DistanceY", 0, 2, -1, 1, Q("15.5 in")))
sketch2.addConstraint(Sketcher.Constraint("DistanceX", 1, 2, 1, 1, Q("1.572 in")))
sketch2.addConstraint(Sketcher.Constraint("DistanceX", 3, 2, 3, 1, Q("0.394 in")))
sketch2.addConstraint(Sketcher.Constraint("DistanceY", 42, 1, 42, 2, Q("0.846 in")))
sketch2.addConstraint(Sketcher.Constraint("Radius", 15, Q("4.6283 mm")))
sketch2.addConstraint(Sketcher.Constraint("Radius", 33, Q("4.63 mm")))
sketch2.addConstraint(Sketcher.Constraint("DistanceY", 15, 3, -1, 1, Q("8.903 in")))
sketch2.addConstraint(Sketcher.Constraint("DistanceY", 27, 3, -1, 1, Q("10.759 in")))
sketch2.addConstraint(Sketcher.Constraint("DistanceX", -1, 1, 34, 3, Q("2.163 in")))
sketch2.addConstraint(Sketcher.Constraint("DistanceY", 34, 3, -1, 1, Q("15.303 in")))
sketch2.addConstraint(Sketcher.Constraint("DistanceY", 35, 3, -1, 1, Q("13.337 in")))
sketch2.addConstraint(Sketcher.Constraint("DistanceX", -1, 1, 36, 3, Q("0.197 in")))
sketch2.addConstraint(Sketcher.Constraint("DistanceY", 43, 3, -1, 1, Q("7.518 in")))
sketch2.addConstraint(Sketcher.Constraint("DistanceX", 12, 2, 12, 1, Q("4.5045 mm")))
sketch2.addConstraint(Sketcher.Constraint("DistanceX", 22, 1, 22, 2, Q("3.3583 mm")))
sketch2.addConstraint(Sketcher.Constraint("DistanceY", 28, 2, 28, 1, Q("3.36 mm")))
sketch2.addConstraint(Sketcher.Constraint("DistanceX", -1, 1, 43, 3, Q("8.186 mm")))
sketch2.addConstraint(Sketcher.Constraint("DistanceX", -1, 1, 47, 3, Q("18.1682 mm")))
sketch2.addConstraint(Sketcher.Constraint("DistanceX", -1, 1, 51, 3, Q("28.1504 mm")))
sketch2.addConstraint(Sketcher.Constraint("DistanceX", -1, 1, 55, 3, Q("38.1326 mm")))
sketch2.addConstraint(Sketcher.Constraint("DistanceX", -1, 1, 59, 3, Q("48.1148 mm")))
sketch2.setExpression("Constraints[140]", "Params.sketch2_radius")
sketch2.setExpression("Constraints[141]", "Params.sketch2_diameter")
sketch2.setExpression("Constraints[142]", "Params.sketch2_diameter2")
sketch2.setExpression("Constraints[144]", "Params.sketch2_width")
sketch2.setExpression("Constraints[145]", "Params.sketch2_width2")
pocket1 = doc.addObject("PartDesign::Pocket", "Pocket")
body.addObject(pocket1)
pocket1.Profile = sketch2
pocket1.setExpression("Length", "Params.pocket1_length")
pocket1.Reversed = True

doc.recompute()
